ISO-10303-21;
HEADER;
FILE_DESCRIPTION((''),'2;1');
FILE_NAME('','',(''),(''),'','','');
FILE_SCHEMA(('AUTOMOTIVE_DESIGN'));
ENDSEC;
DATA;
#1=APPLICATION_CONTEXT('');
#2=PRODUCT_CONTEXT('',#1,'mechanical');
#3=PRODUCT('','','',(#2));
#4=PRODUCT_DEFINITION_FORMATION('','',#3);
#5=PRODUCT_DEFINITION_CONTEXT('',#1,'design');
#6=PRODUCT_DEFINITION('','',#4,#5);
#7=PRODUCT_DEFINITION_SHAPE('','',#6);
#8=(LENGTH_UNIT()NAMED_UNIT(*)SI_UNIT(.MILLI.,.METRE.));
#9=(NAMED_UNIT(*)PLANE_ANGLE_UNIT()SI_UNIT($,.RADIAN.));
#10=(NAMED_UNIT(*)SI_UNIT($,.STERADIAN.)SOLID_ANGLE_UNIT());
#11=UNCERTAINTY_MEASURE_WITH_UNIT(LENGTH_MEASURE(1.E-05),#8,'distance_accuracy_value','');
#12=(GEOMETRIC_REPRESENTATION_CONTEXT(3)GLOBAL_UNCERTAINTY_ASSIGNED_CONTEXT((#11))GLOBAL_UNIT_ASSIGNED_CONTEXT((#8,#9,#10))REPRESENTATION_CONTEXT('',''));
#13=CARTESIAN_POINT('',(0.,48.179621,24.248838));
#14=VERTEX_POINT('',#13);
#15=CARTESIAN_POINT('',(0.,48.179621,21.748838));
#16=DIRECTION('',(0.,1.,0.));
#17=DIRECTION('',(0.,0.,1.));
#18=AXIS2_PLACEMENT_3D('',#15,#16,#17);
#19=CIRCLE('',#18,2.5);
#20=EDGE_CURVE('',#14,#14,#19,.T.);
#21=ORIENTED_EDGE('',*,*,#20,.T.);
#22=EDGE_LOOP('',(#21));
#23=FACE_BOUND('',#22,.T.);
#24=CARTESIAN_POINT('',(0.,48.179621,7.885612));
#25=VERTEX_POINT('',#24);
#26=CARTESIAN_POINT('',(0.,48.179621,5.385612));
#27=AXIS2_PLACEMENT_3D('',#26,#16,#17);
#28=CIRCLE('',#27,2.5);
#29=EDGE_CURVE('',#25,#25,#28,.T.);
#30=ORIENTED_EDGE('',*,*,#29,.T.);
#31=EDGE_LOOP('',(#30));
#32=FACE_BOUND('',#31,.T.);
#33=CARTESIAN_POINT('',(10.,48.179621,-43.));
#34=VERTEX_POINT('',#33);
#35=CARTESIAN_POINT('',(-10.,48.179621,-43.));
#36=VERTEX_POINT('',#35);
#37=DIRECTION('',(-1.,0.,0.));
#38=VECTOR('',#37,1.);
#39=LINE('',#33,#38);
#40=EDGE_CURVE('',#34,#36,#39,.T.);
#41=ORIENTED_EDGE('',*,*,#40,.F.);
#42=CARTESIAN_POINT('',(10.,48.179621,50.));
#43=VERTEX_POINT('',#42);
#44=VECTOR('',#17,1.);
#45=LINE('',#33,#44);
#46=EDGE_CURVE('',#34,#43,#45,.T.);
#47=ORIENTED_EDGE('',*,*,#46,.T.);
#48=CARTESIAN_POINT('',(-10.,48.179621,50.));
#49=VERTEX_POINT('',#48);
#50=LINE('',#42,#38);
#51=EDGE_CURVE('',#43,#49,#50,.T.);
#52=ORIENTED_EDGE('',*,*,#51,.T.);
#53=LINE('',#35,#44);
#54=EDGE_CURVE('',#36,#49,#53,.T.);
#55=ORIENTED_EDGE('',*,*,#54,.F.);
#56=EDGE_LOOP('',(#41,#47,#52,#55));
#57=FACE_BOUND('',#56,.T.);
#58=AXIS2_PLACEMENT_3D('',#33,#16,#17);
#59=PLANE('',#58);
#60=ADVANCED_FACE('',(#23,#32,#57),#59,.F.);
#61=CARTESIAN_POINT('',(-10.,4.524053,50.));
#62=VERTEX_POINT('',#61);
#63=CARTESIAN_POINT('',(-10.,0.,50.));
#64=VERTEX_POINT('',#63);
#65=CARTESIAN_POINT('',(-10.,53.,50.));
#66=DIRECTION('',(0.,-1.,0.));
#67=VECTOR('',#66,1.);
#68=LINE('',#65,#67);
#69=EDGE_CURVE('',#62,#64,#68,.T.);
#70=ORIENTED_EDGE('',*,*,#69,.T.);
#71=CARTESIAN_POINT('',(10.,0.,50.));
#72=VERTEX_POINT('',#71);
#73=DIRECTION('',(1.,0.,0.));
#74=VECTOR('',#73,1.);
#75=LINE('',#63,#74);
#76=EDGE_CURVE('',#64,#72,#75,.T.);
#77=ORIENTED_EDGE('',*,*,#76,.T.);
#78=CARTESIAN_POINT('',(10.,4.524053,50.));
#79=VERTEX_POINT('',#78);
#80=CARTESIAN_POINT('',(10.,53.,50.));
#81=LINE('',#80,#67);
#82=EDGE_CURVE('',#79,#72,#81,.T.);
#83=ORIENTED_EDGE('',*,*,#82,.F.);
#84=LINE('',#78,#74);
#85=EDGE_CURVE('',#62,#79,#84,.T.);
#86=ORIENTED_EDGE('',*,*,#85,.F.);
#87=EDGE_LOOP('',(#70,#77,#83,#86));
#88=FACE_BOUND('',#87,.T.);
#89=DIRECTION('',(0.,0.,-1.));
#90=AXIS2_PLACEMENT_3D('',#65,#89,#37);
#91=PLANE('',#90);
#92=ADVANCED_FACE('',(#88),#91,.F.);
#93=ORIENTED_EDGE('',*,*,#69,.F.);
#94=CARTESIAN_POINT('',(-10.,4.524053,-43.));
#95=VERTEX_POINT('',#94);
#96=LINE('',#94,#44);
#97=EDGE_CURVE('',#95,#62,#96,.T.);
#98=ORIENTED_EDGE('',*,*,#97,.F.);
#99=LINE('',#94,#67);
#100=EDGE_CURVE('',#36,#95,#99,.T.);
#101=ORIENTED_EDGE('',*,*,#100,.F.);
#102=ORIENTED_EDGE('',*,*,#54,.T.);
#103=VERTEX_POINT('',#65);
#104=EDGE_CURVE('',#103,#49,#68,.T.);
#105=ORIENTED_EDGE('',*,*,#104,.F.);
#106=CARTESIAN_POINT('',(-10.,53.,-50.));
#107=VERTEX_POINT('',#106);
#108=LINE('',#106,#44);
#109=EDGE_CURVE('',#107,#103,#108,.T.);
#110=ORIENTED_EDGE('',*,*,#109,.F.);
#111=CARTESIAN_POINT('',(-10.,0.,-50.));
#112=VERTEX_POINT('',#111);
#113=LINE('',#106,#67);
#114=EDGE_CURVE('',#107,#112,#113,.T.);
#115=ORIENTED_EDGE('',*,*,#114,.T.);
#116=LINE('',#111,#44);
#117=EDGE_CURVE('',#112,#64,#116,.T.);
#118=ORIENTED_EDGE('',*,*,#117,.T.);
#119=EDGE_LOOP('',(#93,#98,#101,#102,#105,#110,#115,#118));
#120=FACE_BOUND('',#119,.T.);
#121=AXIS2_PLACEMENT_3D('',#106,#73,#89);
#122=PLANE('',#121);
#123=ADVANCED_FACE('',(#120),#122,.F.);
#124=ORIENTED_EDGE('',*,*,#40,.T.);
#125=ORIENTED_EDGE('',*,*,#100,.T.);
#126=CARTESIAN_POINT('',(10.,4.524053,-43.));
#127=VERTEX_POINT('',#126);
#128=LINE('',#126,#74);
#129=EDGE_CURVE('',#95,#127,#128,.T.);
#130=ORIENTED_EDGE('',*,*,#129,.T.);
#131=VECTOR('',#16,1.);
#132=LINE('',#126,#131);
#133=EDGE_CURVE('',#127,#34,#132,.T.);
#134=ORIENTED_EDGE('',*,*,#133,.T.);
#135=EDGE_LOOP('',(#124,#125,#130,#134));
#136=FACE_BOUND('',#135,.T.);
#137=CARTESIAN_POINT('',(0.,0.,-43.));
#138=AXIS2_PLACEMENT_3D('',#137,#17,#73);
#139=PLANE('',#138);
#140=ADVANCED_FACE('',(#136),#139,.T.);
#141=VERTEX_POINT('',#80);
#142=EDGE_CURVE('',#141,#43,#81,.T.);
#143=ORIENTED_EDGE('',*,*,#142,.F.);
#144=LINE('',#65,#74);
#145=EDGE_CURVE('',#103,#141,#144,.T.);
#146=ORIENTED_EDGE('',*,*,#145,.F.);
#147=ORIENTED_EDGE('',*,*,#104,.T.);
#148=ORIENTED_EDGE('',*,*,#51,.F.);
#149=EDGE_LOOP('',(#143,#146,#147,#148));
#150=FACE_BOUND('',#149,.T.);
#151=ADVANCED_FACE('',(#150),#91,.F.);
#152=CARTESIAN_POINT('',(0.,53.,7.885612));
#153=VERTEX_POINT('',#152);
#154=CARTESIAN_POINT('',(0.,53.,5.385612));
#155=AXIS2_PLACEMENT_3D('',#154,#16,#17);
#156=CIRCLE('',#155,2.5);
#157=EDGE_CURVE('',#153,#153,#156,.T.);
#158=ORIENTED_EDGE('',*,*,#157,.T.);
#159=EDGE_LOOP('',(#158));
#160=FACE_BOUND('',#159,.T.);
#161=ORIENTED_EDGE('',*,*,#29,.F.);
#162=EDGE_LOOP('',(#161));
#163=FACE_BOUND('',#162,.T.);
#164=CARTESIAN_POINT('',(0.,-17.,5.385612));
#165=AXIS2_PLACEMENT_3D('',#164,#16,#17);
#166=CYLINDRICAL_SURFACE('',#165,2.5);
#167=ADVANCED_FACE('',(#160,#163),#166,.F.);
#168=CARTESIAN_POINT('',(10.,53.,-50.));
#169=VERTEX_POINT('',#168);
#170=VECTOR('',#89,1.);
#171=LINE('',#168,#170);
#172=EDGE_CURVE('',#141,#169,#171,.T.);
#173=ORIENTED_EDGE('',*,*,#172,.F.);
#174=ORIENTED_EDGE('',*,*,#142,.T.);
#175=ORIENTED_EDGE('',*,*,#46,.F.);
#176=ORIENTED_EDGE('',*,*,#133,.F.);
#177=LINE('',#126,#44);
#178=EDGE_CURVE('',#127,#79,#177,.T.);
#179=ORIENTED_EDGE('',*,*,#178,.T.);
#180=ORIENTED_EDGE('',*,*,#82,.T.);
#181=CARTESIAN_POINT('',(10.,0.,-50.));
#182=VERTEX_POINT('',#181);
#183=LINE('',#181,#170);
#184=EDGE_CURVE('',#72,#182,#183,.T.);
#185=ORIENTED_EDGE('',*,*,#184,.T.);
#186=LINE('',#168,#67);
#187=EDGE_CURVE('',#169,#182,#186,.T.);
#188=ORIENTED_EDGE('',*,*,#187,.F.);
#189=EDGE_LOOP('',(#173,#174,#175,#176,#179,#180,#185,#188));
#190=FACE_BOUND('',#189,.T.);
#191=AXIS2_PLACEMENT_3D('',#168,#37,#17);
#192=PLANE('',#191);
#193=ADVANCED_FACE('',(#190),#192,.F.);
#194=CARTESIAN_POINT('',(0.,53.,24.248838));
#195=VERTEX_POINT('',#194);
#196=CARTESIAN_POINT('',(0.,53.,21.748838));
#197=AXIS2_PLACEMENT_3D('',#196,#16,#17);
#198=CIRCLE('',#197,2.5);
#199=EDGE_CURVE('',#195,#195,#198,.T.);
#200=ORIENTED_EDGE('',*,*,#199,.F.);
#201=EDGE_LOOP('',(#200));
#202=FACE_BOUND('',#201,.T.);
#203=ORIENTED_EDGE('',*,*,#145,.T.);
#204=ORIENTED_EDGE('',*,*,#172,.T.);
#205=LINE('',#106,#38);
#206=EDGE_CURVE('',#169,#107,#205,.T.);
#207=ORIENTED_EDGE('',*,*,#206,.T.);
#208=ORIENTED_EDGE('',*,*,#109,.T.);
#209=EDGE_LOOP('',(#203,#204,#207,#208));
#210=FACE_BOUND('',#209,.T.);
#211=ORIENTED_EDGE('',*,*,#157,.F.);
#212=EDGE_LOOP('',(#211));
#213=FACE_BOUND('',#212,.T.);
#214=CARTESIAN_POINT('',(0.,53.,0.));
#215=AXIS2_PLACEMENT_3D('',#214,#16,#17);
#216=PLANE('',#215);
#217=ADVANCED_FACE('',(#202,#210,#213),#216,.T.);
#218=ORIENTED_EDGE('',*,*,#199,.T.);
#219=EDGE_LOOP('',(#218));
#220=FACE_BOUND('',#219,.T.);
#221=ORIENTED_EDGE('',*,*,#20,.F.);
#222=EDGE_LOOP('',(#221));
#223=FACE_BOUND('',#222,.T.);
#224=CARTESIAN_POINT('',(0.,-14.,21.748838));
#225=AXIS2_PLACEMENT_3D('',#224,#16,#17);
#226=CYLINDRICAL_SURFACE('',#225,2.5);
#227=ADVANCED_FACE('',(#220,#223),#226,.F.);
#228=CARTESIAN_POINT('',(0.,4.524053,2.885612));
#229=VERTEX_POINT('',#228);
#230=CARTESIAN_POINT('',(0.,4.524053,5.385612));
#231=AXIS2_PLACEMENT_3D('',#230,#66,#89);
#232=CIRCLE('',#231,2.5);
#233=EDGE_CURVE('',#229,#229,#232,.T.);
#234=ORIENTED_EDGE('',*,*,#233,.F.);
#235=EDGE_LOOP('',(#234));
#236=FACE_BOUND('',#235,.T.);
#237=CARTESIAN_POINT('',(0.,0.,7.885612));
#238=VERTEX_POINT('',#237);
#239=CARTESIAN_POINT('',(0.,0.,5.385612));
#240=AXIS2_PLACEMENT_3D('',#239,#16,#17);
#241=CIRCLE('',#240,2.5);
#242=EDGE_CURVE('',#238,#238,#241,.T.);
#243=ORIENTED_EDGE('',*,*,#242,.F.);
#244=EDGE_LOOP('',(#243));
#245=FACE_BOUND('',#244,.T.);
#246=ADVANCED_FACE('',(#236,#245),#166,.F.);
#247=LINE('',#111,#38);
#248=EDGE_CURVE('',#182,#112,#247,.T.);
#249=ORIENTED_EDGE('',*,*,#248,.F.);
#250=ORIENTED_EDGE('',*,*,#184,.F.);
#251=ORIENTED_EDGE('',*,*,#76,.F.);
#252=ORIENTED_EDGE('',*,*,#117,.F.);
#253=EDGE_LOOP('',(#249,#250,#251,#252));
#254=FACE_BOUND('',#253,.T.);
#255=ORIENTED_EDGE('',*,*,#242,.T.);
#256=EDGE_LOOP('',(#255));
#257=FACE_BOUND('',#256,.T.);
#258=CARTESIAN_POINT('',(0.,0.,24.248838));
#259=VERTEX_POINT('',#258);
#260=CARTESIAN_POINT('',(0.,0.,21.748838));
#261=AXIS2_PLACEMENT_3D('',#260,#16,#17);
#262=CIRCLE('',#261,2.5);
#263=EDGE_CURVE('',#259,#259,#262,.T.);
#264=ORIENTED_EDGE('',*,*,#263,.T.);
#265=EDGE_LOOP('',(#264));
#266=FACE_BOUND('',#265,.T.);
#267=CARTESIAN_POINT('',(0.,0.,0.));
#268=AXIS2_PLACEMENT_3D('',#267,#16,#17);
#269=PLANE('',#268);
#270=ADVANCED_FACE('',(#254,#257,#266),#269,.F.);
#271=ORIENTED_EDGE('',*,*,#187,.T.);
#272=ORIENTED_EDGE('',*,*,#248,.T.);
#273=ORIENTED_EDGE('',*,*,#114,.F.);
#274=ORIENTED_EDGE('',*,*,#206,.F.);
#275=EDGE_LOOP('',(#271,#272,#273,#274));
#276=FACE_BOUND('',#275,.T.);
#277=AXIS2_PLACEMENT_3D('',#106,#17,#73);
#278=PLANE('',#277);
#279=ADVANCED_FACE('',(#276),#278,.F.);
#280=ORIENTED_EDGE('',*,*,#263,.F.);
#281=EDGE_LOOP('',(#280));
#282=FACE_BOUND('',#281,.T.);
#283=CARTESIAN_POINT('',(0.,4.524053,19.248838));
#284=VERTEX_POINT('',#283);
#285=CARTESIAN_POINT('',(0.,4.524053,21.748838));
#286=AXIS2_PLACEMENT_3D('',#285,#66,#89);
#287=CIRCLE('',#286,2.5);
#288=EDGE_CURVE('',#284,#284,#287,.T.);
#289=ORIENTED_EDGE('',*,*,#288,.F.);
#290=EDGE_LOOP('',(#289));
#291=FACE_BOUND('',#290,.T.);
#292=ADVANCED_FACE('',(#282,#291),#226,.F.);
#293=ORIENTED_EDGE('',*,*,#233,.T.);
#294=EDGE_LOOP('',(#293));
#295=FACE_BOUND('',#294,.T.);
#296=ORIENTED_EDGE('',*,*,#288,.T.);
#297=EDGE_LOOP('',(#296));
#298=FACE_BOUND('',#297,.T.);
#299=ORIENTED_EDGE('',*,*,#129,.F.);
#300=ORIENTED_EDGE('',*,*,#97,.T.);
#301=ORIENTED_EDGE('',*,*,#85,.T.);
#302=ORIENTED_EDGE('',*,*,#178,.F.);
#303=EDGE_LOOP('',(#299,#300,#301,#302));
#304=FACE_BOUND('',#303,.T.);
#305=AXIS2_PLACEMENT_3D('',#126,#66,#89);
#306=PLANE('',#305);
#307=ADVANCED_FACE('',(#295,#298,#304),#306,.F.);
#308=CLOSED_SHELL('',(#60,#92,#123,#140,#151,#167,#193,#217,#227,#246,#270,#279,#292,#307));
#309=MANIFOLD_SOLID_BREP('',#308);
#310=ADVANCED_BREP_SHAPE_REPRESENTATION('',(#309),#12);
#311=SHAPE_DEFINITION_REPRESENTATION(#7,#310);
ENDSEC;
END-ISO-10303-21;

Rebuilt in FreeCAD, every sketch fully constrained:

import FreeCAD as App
import Part
import Sketcher
from FreeCAD import Vector


def add_polygon(sketch, points):
    """Adds a closed chain of lines whose ends are joined by coincident constraints."""
    first, n = sketch.GeometryCount, len(points)
    for a, b in zip(points, points[1:] + points[:1]):
        sketch.addGeometry(Part.LineSegment(App.Vector(*a, 0), App.Vector(*b, 0)), False)
    for i in range(n):
        sketch.addConstraint(Sketcher.Constraint("Coincident", first + i, 2, first + (i + 1) % n, 1))

doc = App.newDocument("Part")
body = doc.addObject("PartDesign::Body", "Body")

sketch1 = body.newObject("Sketcher::SketchObject", "Sketch")
sketch1.AttachmentSupport = (doc.getObject("XZ_Plane"), [""])
sketch1.MapMode = "FlatFace"
add_polygon(sketch1, [(-10, -50), (-10, 50), (10, 50), (10, -50)])
sketch1.addConstraint(Sketcher.Constraint("Vertical", 0))
sketch1.addConstraint(Sketcher.Constraint("Horizontal", 1))
sketch1.addConstraint(Sketcher.Constraint("Vertical", 2))
sketch1.addConstraint(Sketcher.Constraint("Horizontal", 3))
sketch1.addConstraint(Sketcher.Constraint("Symmetric", 0, 2, 2, 2, -1, 1))
sketch1.addConstraint(Sketcher.Constraint("DistanceX", 1, 1, 1, 2, 20.0))
sketch1.addConstraint(Sketcher.Constraint("DistanceY", 0, 1, 0, 2, 100.0))
pad1 = body.newObject("PartDesign::Pad", "Pad")
pad1.Profile = sketch1
pad1.Length = 53
pad1.Reversed = True

sketch2 = body.newObject("Sketcher::SketchObject", "Sketch001")
sketch2.AttachmentSupport = (doc.getObject("XY_Plane"), [""])
sketch2.MapMode = "FlatFace"
sketch2.AttachmentOffset = App.Placement(Vector(0, 0, 50), App.Rotation())
add_polygon(sketch2, [(-10, 26.639308), (-10, 4.524053), (10, 4.524053), (10, 26.639308)])
sketch2.addConstraint(Sketcher.Constraint("Vertical", 0))
sketch2.addConstraint(Sketcher.Constraint("Horizontal", 1))
sketch2.addConstraint(Sketcher.Constraint("Vertical", 2))
sketch2.addConstraint(Sketcher.Constraint("Horizontal", 3))
sketch2.addConstraint(Sketcher.Constraint("DistanceX", 1, 1, 1, 2, 20.0))
sketch2.addConstraint(Sketcher.Constraint("DistanceX", 0, 2, -1, 1, 10.0))
sketch2.addConstraint(Sketcher.Constraint("DistanceY", 0, 2, 0, 1, 22.115254))
sketch2.addConstraint(Sketcher.Constraint("DistanceY", -1, 1, 0, 2, 4.524053))
pocket1 = body.newObject("PartDesign::Pocket", "Pocket")
pocket1.Profile = sketch2
pocket1.Length = 93

sketch3 = body.newObject("Sketcher::SketchObject", "Sketch002")
sketch3.AttachmentSupport = (doc.getObject("XY_Plane"), [""])
sketch3.MapMode = "FlatFace"
sketch3.AttachmentOffset = App.Placement(Vector(0, 0, 50), App.Rotation())
add_polygon(sketch3, [(-10, 34.067887), (-10, 26.639308), (10, 26.639308), (10, 34.067887)])
sketch3.addConstraint(Sketcher.Constraint("Vertical", 0))
sketch3.addConstraint(Sketcher.Constraint("Horizontal", 1))
sketch3.addConstraint(Sketcher.Constraint("Vertical", 2))
sketch3.addConstraint(Sketcher.Constraint("Horizontal", 3))
sketch3.addConstraint(Sketcher.Constraint("DistanceX", 1, 1, 1, 2, 20.0))
sketch3.addConstraint(Sketcher.Constraint("DistanceX", 0, 2, -1, 1, 10.0))
sketch3.addConstraint(Sketcher.Constraint("DistanceY", 0, 2, 0, 1, 7.428579))
sketch3.addConstraint(Sketcher.Constraint("DistanceY", -1, 1, 0, 2, 26.639308))
pocket2 = body.newObject("PartDesign::Pocket", "Pocket001")
pocket2.Profile = sketch3
pocket2.Length = 93

sketch4 = body.newObject("Sketcher::SketchObject", "Sketch003")
sketch4.AttachmentSupport = (doc.getObject("XY_Plane"), [""])
sketch4.MapMode = "FlatFace"
sketch4.AttachmentOffset = App.Placement(Vector(0, 0, 50), App.Rotation())
add_polygon(sketch4, [(-10, 48.179621), (-10, 34.067887), (10, 34.067887), (10, 48.179621)])
sketch4.addConstraint(Sketcher.Constraint("Vertical", 0))
sketch4.addConstraint(Sketcher.Constraint("Horizontal", 1))
sketch4.addConstraint(Sketcher.Constraint("Vertical", 2))
sketch4.addConstraint(Sketcher.Constraint("Horizontal", 3))
sketch4.addConstraint(Sketcher.Constraint("DistanceX", 1, 1, 1, 2, 20.0))
sketch4.addConstraint(Sketcher.Constraint("DistanceX", 0, 2, -1, 1, 10.0))
sketch4.addConstraint(Sketcher.Constraint("DistanceY", 0, 2, 0, 1, 14.111734))
sketch4.addConstraint(Sketcher.Constraint("DistanceY", -1, 1, 2, 2, 48.179621))
pocket3 = body.newObject("PartDesign::Pocket", "Pocket002")
pocket3.Profile = sketch4
pocket3.Length = 93

sketch5 = body.newObject("Sketcher::SketchObject", "Sketch004")
sketch5.AttachmentSupport = (doc.getObject("XZ_Plane"), [""])
sketch5.MapMode = "FlatFace"
sketch5.AttachmentOffset = App.Placement(Vector(0, 0, -53), App.Rotation())
sketch5.addGeometry(Part.Circle(Vector(0, 5.385612, 0), Vector(0, 0, 1), 2.5), False)
sketch5.addConstraint(Sketcher.Constraint("PointOnObject", 0, 3, -2))
sketch5.addConstraint(Sketcher.Constraint("Diameter", 0, 5.0))
sketch5.addConstraint(Sketcher.Constraint("DistanceY", -1, 1, 0, 3, 5.385612))
pocket4 = body.newObject("PartDesign::Pocket", "Pocket003")
pocket4.Profile = sketch5
pocket4.Length = 70
pocket4.Reversed = True

sketch6 = body.newObject("Sketcher::SketchObject", "Sketch005")
sketch6.AttachmentSupport = (doc.getObject("XZ_Plane"), [""])
sketch6.MapMode = "FlatFace"
sketch6.AttachmentOffset = App.Placement(Vector(0, 0, -53), App.Rotation())
sketch6.addGeometry(Part.Circle(Vector(0, 21.748838, 0), Vector(0, 0, 1), 2.5), False)
sketch6.addConstraint(Sketcher.Constraint("PointOnObject", 0, 3, -2))
sketch6.addConstraint(Sketcher.Constraint("Diameter", 0, 5.0))
sketch6.addConstraint(Sketcher.Constraint("DistanceY", -1, 1, 0, 3, 21.748838))
pocket5 = body.newObject("PartDesign::Pocket", "Pocket004")
pocket5.Profile = sketch6
pocket5.Length = 67
pocket5.Reversed = True

doc.recompute()
